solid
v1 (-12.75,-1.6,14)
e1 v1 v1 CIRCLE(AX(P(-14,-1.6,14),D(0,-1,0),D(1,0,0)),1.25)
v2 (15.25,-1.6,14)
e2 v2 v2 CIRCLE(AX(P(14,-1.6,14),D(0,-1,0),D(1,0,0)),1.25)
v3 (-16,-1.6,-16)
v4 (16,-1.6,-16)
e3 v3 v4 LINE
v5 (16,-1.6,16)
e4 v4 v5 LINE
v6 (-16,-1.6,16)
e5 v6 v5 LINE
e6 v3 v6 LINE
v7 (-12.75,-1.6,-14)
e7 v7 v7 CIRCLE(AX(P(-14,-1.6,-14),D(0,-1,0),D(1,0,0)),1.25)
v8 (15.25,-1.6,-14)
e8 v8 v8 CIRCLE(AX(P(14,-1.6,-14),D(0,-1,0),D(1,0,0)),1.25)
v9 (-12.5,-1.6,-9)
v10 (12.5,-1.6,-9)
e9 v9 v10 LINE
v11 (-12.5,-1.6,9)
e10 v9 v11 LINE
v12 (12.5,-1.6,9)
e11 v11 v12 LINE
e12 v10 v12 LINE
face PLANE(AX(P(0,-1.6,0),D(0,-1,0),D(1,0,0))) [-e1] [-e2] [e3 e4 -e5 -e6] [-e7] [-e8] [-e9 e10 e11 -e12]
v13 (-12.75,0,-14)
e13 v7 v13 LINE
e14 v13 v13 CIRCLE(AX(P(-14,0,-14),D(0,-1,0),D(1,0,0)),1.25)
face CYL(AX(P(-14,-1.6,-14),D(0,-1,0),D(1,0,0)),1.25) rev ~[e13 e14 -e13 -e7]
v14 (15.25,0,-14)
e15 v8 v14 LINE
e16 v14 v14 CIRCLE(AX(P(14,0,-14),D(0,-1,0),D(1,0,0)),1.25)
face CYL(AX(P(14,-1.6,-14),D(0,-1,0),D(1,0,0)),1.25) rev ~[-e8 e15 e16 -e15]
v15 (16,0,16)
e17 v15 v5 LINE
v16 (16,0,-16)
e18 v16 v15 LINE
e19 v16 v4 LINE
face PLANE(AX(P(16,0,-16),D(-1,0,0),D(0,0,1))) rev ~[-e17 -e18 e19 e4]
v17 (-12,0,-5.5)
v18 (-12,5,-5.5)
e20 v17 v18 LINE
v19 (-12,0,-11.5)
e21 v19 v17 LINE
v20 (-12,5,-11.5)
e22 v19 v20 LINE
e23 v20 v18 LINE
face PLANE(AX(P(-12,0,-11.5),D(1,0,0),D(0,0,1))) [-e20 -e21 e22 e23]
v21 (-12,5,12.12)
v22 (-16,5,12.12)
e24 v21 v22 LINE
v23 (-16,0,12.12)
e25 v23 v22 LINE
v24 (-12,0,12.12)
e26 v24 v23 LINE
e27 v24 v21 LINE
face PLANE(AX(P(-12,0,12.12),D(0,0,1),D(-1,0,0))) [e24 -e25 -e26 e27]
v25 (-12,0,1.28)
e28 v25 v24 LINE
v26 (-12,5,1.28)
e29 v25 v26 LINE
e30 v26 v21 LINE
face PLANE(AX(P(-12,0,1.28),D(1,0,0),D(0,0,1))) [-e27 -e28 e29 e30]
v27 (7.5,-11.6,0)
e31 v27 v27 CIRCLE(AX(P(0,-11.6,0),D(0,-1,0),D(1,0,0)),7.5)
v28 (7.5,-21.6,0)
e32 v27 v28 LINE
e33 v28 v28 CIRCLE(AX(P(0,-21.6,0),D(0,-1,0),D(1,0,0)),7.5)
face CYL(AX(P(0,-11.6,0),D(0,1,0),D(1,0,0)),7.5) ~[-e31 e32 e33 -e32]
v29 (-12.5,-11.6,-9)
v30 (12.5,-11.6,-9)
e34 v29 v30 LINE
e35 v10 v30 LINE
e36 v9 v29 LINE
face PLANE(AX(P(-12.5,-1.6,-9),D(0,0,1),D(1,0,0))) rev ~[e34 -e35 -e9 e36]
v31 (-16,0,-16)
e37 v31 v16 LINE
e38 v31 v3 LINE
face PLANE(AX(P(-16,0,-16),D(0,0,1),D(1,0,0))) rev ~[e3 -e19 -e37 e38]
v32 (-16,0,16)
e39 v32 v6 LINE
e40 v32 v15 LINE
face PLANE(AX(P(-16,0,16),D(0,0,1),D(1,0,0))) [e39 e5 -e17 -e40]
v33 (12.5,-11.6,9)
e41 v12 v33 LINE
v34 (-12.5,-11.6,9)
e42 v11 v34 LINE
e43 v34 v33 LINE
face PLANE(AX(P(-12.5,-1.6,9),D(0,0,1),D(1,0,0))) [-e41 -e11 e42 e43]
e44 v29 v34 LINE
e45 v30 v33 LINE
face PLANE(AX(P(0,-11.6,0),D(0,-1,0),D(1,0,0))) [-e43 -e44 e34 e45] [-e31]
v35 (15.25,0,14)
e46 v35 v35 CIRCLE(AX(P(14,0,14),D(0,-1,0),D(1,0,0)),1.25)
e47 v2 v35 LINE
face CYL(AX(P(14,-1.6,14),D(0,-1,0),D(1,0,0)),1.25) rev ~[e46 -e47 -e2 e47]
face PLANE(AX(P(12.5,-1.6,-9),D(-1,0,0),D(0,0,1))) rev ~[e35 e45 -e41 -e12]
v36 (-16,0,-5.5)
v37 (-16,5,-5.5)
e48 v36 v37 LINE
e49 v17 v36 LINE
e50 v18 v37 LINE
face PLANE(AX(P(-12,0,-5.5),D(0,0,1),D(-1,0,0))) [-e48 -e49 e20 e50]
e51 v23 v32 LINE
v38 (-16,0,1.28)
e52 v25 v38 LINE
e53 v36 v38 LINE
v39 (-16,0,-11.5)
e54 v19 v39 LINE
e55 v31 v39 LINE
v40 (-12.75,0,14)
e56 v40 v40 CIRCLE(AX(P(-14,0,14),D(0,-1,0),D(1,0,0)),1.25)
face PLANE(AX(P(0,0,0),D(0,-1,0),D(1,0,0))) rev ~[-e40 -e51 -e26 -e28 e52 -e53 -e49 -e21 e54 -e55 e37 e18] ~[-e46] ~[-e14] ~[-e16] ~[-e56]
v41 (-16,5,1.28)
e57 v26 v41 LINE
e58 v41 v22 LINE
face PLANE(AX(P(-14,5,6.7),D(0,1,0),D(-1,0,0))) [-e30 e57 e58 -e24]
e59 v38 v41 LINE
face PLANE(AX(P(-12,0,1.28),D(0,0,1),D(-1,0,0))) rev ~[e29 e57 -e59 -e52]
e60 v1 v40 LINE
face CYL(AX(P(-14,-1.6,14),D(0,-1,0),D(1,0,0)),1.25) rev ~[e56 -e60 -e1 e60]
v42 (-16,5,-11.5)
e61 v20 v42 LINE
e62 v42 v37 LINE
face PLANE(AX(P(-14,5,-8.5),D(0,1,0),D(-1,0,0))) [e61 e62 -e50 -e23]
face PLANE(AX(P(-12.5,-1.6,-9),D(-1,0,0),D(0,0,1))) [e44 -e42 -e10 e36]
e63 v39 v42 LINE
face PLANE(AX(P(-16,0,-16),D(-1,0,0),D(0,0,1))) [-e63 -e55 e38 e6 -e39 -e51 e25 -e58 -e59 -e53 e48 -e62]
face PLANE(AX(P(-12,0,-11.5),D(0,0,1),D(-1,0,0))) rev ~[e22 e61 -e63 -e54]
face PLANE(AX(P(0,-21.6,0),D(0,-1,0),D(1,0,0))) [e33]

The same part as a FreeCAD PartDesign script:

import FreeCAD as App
import Part
import Sketcher
Q = App.Units.Quantity


def add_polygon(sketch, points):
    """Adds a closed chain of lines whose ends are joined by coincident constraints."""
    first, n = sketch.GeometryCount, len(points)
    for a, b in zip(points, points[1:] + points[:1]):
        sketch.addGeometry(Part.LineSegment(App.Vector(*a, 0), App.Vector(*b, 0)), False)
    for i in range(n):
        sketch.addConstraint(Sketcher.Constraint("Coincident", first + i, 2, first + (i + 1) % n, 1))

doc = App.newDocument("Part")
params = doc.addObject("Spreadsheet::Sheet", "Params")
for row, (alias, value) in enumerate([
    ("sketch1_width", "32 mm"),
    ("pad1_length", "1.6 mm"),
    ("sketch2_width", "25 mm"),
    ("sketch2_height", "18 mm"),
    ("pad2_length", "10 mm"),
    ("sketch3_diameter", "15 mm"),
    ("pad3_length", "10 mm"),
    ("sketch4_width", "4 mm"),
    ("sketch4_height", "6 mm"),
    ("sketch4_height2", "10.84 mm"),
    ("pad4_length", "5 mm"),
    ("sketch5_diameter", "2.5 mm"),
    ("pocket1_length", "25 mm"),
], start=1):
    params.set(f"A{row}", alias)
    params.set(f"B{row}", "=" + value)
    params.setAlias(f"B{row}", alias)

body = doc.addObject("PartDesign::Body", "Body")

sketch1 = body.newObject("Sketcher::SketchObject", "Sketch")
sketch1.AttachmentSupport = (doc.getObject("XZ_Plane"), [""])
sketch1.MapMode = "FlatFace"
add_polygon(sketch1, [(-16, 16), (-16, -16), (16, -16), (16, 16)])
sketch1.addConstraint([
    Sketcher.Constraint("Vertical", 0),
    Sketcher.Constraint("Horizontal", 1),
    Sketcher.Constraint("Vertical", 2),
    Sketcher.Constraint("Horizontal", 3),
    Sketcher.Constraint("Symmetric", 0, 2, 2, 2, -1, 1),
    Sketcher.Constraint("Equal", 3, 0),
    Sketcher.Constraint("DistanceX", 1, 1, 1, 2, Q("32 mm")),
])
sketch1.setExpression("Constraints[10]", "Params.sketch1_width")
pad1 = body.newObject("PartDesign::Pad", "Pad")
pad1.Profile = sketch1
pad1.setExpression("Length", "Params.pad1_length")

sketch2 = body.newObject("Sketcher::SketchObject", "Sketch001")
sketch2.AttachmentSupport = (doc.getObject("XZ_Plane"), [""])
sketch2.MapMode = "FlatFace"
sketch2.AttachmentOffset = App.Placement(App.Vector(0, 0, 1.6), App.Rotation())
add_polygon(sketch2, [(-12, 9), (-12, -9), (12, -9), (12, 9)])
sketch2.addConstraint([
    Sketcher.Constraint("Vertical", 0),
    Sketcher.Constraint("Horizontal", 1),
    Sketcher.Constraint("Vertical", 2),
    Sketcher.Constraint("Horizontal", 3),
    Sketcher.Constraint("Symmetric", 0, 2, 2, 2, -1, 1),
    Sketcher.Constraint("DistanceX", 1, 1, 1, 2, Q("25 mm")),
    Sketcher.Constraint("DistanceY", 0, 2, 0, 1, Q("18 mm")),
])
sketch2.setExpression("Constraints[9]", "Params.sketch2_width")
sketch2.setExpression("Constraints[10]", "Params.sketch2_height")
pad2 = body.newObject("PartDesign::Pad", "Pad001")
pad2.Profile = sketch2
pad2.setExpression("Length", "Params.pad2_length")

sketch3 = body.newObject("Sketcher::SketchObject", "Sketch002")
sketch3.AttachmentSupport = (doc.getObject("XZ_Plane"), [""])
sketch3.MapMode = "FlatFace"
sketch3.AttachmentOffset = App.Placement(App.Vector(0, 0, 11.6), App.Rotation())
sketch3.addGeometry(Part.Circle(App.Vector(0, 0, 0), App.Vector(0, 0, 1), 8), False)
sketch3.addConstraint([
    Sketcher.Constraint("Coincident", 0, 3, -1, 1),
    Sketcher.Constraint("Diameter", 0, Q("15 mm")),
])
sketch3.setExpression("Constraints[1]", "Params.sketch3_diameter")
pad3 = body.newObject("PartDesign::Pad", "Pad002")
pad3.Profile = sketch3
pad3.setExpression("Length", "Params.pad3_length")

sketch4 = body.newObject("Sketcher::SketchObject", "Sketch003")
sketch4.AttachmentSupport = (doc.getObject("XZ_Plane"), [""])
sketch4.MapMode = "FlatFace"
add_polygon(sketch4, [(-12, 12.1), (-12, 1.3), (-16, 1.3), (-16, 12.1)])
add_polygon(sketch4, [(-12, -5.5), (-12, -11.5), (-16, -11.5), (-16, -5.5)])
sketch4.addConstraint([
    Sketcher.Constraint("Vertical", 0),
    Sketcher.Constraint("Horizontal", 1),
    Sketcher.Constraint("Vertical", 2),
    Sketcher.Constraint("Horizontal", 3),
    Sketcher.Constraint("Vertical", 4),
    Sketcher.Constraint("Horizontal", 5),
    Sketcher.Constraint("Vertical", 6),
    Sketcher.Constraint("Horizontal", 7),
    Sketcher.Constraint("Vertical", 3, 2, 4, 2),
    Sketcher.Constraint("Vertical", 2, 2, 5, 2),
    Sketcher.Constraint("DistanceX", 1, 2, 1, 1, Q("4 mm")),
    Sketcher.Constraint("DistanceY", 4, 2, 4, 1, Q("6 mm")),
    Sketcher.Constraint("DistanceX", 0, 2, -1, 1, Q("12 mm")),
    Sketcher.Constraint("DistanceY", 0, 2, 0, 1, Q("10.84 mm")),
    Sketcher.Constraint("DistanceY", 4, 2, -1, 1, Q("11.5 mm")),
    Sketcher.Constraint("DistanceY", -1, 1, 0, 2, Q("1.28 mm")),
])
sketch4.setExpression("Constraints[18]", "Params.sketch4_width")
sketch4.setExpression("Constraints[19]", "Params.sketch4_height")
sketch4.setExpression("Constraints[21]", "Params.sketch4_height2")
pad4 = body.newObject("PartDesign::Pad", "Pad003")
pad4.Profile = sketch4
pad4.setExpression("Length", "Params.pad4_length")
pad4.Reversed = True

sketch5 = body.newObject("Sketcher::SketchObject", "Sketch004")
sketch5.AttachmentSupport = (doc.getObject("XZ_Plane"), [""])
sketch5.MapMode = "FlatFace"
sketch5.AttachmentOffset = App.Placement(App.Vector(0, 0, 1.6), App.Rotation())
sketch5.addGeometry([
    Part.Circle(App.Vector(14, 14, 0), App.Vector(0, 0, 1), 1.2),
    Part.Circle(App.Vector(14, -14, 0), App.Vector(0, 0, 1), 1.2),
    Part.Circle(App.Vector(-14, -14, 0), App.Vector(0, 0, 1), 1.2),
    Part.Circle(App.Vector(-14, 14, 0), App.Vector(0, 0, 1), 1.2),
], False)
sketch5.addConstraint([
    Sketcher.Constraint("Equal", 0, 1),
    Sketcher.Constraint("Equal", 1, 2),
    Sketcher.Constraint("Equal", 2, 3),
    Sketcher.Constraint("Symmetric", 0, 3, 2, 3, -1, 1),
    Sketcher.Constraint("Symmetric", 1, 3, 3, 3, -1, 1),
    Sketcher.Constraint("Symmetric", 1, 3, 2, 3, -2),
    Sketcher.Constraint("Diameter", 0, Q("2.5 mm")),
    Sketcher.Constraint("DistanceX", -1, 1, 0, 3, Q("14 mm")),
    Sketcher.Constraint("DistanceY", -1, 1, 0, 3, Q("14 mm")),
])
sketch5.setExpression("Constraints[6]", "Params.sketch5_diameter")
pocket1 = body.newObject("PartDesign::Pocket", "Pocket")
pocket1.Profile = sketch5
pocket1.setExpression("Length", "Params.pocket1_length")

doc.recompute()
